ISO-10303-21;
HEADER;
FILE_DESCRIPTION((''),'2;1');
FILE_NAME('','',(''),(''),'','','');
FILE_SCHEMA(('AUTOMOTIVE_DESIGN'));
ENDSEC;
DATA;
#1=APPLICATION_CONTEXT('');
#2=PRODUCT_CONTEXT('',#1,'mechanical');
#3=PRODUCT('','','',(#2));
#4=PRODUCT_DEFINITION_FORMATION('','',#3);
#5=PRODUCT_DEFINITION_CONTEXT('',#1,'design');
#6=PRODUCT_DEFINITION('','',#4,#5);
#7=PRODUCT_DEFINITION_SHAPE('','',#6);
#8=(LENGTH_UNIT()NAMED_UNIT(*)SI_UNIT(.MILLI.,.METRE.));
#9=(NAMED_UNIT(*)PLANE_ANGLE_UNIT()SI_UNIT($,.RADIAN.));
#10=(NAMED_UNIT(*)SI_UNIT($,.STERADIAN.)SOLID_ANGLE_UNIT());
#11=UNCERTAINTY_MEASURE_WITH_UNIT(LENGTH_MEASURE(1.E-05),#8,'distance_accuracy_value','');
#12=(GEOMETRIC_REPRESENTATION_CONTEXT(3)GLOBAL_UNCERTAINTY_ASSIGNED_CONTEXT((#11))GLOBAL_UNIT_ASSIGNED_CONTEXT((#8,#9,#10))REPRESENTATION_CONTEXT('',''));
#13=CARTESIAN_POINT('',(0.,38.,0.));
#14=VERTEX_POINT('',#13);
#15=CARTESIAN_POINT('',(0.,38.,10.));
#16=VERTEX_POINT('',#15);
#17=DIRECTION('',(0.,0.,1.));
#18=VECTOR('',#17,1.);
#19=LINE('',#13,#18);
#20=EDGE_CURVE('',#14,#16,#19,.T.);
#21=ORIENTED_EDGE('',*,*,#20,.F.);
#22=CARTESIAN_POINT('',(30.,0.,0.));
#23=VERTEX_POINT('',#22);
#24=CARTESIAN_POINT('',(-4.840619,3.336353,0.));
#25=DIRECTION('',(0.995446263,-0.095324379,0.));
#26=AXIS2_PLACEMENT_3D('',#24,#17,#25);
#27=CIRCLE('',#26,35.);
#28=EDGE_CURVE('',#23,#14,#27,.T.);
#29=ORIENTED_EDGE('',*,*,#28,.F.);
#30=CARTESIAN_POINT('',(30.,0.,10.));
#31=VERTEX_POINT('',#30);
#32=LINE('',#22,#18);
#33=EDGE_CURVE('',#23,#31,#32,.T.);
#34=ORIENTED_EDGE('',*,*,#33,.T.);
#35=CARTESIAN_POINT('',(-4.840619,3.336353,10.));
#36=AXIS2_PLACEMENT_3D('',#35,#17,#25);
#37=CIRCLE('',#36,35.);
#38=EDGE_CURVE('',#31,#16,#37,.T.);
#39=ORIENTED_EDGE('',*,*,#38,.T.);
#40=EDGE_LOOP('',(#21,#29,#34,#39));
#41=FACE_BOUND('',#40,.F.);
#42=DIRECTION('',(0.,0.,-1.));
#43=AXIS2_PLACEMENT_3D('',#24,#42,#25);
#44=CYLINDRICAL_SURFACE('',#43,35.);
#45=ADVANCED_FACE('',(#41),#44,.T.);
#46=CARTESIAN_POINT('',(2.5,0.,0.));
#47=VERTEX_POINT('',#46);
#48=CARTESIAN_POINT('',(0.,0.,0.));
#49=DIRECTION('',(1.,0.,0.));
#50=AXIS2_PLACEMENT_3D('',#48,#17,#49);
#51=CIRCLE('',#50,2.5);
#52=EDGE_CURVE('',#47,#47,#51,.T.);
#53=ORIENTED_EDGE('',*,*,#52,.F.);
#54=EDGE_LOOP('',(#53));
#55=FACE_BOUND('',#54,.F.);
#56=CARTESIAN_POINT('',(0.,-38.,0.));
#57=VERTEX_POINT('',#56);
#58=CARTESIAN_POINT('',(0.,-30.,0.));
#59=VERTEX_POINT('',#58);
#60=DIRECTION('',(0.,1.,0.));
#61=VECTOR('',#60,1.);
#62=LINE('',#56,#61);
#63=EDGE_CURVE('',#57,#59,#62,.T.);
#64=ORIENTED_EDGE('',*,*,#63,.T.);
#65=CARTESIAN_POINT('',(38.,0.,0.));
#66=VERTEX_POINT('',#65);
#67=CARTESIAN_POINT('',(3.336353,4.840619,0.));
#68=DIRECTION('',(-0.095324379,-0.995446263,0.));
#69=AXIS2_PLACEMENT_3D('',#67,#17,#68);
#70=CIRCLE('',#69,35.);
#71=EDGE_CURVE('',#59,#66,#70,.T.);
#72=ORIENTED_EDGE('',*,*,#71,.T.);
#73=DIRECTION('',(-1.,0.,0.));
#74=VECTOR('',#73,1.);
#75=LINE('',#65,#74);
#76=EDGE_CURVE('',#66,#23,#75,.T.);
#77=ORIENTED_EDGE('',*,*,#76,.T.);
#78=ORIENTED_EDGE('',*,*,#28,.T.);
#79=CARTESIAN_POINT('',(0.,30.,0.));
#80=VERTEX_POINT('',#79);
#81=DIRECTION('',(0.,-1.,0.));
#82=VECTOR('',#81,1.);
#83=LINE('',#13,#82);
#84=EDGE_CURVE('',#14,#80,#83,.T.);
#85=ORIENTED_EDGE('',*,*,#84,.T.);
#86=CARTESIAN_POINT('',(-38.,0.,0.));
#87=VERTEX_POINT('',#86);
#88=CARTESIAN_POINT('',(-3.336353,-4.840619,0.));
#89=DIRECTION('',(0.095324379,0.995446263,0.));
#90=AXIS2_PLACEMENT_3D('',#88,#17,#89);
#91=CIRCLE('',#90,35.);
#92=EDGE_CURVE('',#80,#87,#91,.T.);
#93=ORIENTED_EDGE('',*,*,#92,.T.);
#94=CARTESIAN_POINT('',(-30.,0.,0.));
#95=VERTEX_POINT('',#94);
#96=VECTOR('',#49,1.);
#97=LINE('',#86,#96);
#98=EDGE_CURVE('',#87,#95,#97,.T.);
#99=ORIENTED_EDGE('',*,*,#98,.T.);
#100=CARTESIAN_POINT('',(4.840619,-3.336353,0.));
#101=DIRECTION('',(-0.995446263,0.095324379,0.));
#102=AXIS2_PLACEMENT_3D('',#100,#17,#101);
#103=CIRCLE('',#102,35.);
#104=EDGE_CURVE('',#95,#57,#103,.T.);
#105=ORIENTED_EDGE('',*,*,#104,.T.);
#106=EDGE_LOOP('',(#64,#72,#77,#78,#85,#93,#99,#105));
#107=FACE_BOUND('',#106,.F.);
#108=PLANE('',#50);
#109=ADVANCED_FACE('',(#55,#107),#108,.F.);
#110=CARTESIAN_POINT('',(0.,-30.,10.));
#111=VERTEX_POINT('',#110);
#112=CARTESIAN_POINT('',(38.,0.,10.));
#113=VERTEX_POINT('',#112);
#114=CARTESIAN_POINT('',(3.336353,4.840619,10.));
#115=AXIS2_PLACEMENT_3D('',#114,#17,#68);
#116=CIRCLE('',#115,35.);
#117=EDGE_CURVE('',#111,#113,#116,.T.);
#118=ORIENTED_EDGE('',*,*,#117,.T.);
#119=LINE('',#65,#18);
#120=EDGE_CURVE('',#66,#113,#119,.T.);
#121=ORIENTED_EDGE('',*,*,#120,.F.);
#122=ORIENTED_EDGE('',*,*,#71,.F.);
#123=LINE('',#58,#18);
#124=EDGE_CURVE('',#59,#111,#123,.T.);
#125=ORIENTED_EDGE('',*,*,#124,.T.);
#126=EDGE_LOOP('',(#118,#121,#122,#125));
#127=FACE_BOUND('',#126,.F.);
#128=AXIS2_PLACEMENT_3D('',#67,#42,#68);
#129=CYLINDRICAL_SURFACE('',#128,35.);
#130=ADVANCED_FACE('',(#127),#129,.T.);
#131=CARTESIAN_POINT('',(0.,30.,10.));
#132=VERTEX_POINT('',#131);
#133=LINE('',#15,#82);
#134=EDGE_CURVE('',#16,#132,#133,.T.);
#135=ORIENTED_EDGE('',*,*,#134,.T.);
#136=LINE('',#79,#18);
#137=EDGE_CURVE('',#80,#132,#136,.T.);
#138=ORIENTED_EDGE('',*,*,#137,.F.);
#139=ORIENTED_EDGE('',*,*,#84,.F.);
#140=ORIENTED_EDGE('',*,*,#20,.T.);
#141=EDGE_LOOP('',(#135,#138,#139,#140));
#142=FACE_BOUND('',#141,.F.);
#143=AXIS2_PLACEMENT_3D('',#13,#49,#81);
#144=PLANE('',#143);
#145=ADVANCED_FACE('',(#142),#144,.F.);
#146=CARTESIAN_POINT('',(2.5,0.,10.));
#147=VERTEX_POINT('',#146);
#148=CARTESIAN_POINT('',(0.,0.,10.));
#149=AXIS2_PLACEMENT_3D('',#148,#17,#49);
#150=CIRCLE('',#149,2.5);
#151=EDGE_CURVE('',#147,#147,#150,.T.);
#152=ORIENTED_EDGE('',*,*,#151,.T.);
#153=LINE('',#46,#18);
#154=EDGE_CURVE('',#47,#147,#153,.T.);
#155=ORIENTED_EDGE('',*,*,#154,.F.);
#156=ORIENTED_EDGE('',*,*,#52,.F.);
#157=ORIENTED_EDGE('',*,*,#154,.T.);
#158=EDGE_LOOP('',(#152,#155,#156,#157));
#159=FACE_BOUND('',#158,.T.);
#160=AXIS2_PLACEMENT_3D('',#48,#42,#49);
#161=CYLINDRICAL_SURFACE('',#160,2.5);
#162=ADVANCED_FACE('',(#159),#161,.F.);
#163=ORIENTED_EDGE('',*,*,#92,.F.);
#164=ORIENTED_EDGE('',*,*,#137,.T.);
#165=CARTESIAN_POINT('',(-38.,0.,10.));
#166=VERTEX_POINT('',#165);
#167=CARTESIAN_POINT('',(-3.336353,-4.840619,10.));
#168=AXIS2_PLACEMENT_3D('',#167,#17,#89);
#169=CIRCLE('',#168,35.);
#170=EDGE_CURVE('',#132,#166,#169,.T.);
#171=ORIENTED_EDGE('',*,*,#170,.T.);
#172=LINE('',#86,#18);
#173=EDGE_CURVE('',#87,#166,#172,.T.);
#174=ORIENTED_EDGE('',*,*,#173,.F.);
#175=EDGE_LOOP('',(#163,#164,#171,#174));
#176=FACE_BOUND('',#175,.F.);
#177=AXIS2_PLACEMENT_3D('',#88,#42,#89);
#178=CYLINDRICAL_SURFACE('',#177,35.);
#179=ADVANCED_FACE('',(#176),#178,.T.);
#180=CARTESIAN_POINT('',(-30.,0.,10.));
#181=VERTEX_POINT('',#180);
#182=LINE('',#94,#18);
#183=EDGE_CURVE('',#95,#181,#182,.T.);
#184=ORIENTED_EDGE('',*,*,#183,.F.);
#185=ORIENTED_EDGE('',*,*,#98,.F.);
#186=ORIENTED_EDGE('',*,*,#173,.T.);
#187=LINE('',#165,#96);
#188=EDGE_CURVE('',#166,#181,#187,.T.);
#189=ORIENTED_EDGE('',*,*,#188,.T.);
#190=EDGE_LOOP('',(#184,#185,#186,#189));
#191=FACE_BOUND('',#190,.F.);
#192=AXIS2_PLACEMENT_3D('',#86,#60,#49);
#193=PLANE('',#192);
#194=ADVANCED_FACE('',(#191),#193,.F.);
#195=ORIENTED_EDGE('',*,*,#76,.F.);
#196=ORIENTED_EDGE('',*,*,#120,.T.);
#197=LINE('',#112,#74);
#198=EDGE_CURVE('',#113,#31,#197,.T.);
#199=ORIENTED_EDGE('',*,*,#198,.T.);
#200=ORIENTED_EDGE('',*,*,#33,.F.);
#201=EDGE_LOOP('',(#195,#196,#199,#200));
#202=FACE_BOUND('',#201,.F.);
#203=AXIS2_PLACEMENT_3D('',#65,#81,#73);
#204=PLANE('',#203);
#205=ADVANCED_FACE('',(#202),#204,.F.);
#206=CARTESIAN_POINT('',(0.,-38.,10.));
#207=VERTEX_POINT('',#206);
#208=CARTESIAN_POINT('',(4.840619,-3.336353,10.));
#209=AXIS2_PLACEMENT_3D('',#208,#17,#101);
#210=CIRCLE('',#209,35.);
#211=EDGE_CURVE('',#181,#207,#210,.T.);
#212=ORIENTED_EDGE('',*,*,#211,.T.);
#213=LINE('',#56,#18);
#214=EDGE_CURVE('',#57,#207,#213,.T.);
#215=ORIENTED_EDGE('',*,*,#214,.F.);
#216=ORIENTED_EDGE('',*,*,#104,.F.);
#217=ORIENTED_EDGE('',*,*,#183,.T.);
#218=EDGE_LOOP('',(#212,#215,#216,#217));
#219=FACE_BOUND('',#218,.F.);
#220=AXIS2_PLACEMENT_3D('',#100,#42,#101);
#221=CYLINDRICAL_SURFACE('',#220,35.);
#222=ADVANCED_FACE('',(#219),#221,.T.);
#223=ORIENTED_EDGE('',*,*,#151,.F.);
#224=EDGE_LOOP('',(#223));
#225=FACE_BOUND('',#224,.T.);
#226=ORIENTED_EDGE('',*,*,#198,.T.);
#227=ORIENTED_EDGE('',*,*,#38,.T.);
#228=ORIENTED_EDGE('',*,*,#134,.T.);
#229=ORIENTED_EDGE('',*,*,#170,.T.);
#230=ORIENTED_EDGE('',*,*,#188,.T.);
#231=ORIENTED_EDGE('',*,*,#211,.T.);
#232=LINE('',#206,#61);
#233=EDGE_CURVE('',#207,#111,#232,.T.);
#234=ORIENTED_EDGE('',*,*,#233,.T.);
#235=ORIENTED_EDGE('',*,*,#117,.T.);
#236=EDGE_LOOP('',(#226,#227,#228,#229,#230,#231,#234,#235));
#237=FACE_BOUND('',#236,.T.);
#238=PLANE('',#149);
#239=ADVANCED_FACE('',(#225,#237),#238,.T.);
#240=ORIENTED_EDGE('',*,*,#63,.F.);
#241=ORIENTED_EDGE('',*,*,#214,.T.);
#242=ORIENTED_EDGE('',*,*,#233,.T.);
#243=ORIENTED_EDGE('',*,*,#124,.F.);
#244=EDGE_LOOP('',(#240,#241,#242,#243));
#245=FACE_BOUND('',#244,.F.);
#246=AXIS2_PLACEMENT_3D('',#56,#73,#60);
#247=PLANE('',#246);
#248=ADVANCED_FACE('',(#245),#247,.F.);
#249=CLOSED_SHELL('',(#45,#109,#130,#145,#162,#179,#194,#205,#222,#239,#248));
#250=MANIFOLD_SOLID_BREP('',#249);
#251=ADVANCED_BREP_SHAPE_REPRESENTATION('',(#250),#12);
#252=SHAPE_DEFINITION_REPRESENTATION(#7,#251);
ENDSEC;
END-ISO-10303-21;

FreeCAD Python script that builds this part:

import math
import FreeCAD as App
import Part
import Sketcher
Q = App.Units.Quantity

doc = App.newDocument("Part")
body = doc.addObject("PartDesign::Body", "Body")

# Sketch on XY plane
sketch1 = body.newObject("Sketcher::SketchObject", "Sketch")
sketch1.AttachmentSupport = (doc.getObject("XY_Plane"), [""])
sketch1.MapMode = "FlatFace"
sketch1.addGeometry([
    Part.ArcOfCircle(Part.Circle(App.Vector(3.336353, 4.840619, 0), App.Vector(0, 0, 1), 35), math.radians(-95.46999), math.radians(-7.949684)),  # 0
    Part.LineSegment(App.Vector(38, 0, 0), App.Vector(30, 0, 0)),  # 1
    Part.ArcOfCircle(Part.Circle(App.Vector(-4.840619, 3.336353, 0), App.Vector(0, 0, 1), 35), math.radians(-5.46999), math.radians(82.050316)),  # 2
    Part.LineSegment(App.Vector(0, 38, 0), App.Vector(0, 30, 0)),  # 3
    Part.ArcOfCircle(Part.Circle(App.Vector(-3.336353, -4.840619, 0), App.Vector(0, 0, 1), 35), math.radians(84.53001), math.radians(172.050316)),  # 4
    Part.LineSegment(App.Vector(-38, 0, 0), App.Vector(-30, 0, 0)),  # 5
    Part.ArcOfCircle(Part.Circle(App.Vector(4.840619, -3.336353, 0), App.Vector(0, 0, 1), 35), math.radians(174.53001), math.radians(262.050316)),  # 6
    Part.LineSegment(App.Vector(0, -38, 0), App.Vector(0, -30, 0)),  # 7
    Part.Circle(App.Vector(0, 0, 0), App.Vector(0, 0, 1), 2.5),  # 8
], False)
sketch1.addConstraint([
    Sketcher.Constraint("Coincident", 0, 2, 1, 1),
    Sketcher.Constraint("Coincident", 1, 2, 2, 1),
    Sketcher.Constraint("Coincident", 2, 2, 3, 1),
    Sketcher.Constraint("Coincident", 3, 2, 4, 1),
    Sketcher.Constraint("Coincident", 4, 2, 5, 1),
    Sketcher.Constraint("Coincident", 5, 2, 6, 1),
    Sketcher.Constraint("Coincident", 6, 2, 7, 1),
    Sketcher.Constraint("Coincident", 7, 2, 0, 1),
    Sketcher.Constraint("Horizontal", 1),
    Sketcher.Constraint("Vertical", 3),
    Sketcher.Constraint("Horizontal", 5),
    Sketcher.Constraint("Vertical", 7),
    Sketcher.Constraint("Coincident", 8, 3, -1, 1),
    Sketcher.Constraint("Equal", 0, 2),
    Sketcher.Constraint("Equal", 2, 4),
    Sketcher.Constraint("Equal", 4, 6),
    Sketcher.Constraint("Symmetric", 0, 3, 4, 3, -1, 1),
    Sketcher.Constraint("Symmetric", 2, 3, 6, 3, -1, 1),
    Sketcher.Constraint("Symmetric", 0, 2, 4, 2, -2),
    Sketcher.Constraint("Symmetric", 2, 2, 6, 2, -1),
    Sketcher.Constraint("Equal", 5, 3),
    Sketcher.Constraint("Diameter", 8, Q("5 mm")),
    Sketcher.Constraint("Radius", 0, Q("35 mm")),
    Sketcher.Constraint("DistanceX", 1, 2, 1, 1, Q("8 mm")),
    Sketcher.Constraint("DistanceX", -1, 1, 0, 2, Q("38 mm")),
    Sketcher.Constraint("DistanceY", -1, 1, 2, 2, Q("38 mm")),
])
pad1 = body.newObject("PartDesign::Pad", "Pad")
pad1.Profile = sketch1
pad1.Length = 10

doc.recompute()
